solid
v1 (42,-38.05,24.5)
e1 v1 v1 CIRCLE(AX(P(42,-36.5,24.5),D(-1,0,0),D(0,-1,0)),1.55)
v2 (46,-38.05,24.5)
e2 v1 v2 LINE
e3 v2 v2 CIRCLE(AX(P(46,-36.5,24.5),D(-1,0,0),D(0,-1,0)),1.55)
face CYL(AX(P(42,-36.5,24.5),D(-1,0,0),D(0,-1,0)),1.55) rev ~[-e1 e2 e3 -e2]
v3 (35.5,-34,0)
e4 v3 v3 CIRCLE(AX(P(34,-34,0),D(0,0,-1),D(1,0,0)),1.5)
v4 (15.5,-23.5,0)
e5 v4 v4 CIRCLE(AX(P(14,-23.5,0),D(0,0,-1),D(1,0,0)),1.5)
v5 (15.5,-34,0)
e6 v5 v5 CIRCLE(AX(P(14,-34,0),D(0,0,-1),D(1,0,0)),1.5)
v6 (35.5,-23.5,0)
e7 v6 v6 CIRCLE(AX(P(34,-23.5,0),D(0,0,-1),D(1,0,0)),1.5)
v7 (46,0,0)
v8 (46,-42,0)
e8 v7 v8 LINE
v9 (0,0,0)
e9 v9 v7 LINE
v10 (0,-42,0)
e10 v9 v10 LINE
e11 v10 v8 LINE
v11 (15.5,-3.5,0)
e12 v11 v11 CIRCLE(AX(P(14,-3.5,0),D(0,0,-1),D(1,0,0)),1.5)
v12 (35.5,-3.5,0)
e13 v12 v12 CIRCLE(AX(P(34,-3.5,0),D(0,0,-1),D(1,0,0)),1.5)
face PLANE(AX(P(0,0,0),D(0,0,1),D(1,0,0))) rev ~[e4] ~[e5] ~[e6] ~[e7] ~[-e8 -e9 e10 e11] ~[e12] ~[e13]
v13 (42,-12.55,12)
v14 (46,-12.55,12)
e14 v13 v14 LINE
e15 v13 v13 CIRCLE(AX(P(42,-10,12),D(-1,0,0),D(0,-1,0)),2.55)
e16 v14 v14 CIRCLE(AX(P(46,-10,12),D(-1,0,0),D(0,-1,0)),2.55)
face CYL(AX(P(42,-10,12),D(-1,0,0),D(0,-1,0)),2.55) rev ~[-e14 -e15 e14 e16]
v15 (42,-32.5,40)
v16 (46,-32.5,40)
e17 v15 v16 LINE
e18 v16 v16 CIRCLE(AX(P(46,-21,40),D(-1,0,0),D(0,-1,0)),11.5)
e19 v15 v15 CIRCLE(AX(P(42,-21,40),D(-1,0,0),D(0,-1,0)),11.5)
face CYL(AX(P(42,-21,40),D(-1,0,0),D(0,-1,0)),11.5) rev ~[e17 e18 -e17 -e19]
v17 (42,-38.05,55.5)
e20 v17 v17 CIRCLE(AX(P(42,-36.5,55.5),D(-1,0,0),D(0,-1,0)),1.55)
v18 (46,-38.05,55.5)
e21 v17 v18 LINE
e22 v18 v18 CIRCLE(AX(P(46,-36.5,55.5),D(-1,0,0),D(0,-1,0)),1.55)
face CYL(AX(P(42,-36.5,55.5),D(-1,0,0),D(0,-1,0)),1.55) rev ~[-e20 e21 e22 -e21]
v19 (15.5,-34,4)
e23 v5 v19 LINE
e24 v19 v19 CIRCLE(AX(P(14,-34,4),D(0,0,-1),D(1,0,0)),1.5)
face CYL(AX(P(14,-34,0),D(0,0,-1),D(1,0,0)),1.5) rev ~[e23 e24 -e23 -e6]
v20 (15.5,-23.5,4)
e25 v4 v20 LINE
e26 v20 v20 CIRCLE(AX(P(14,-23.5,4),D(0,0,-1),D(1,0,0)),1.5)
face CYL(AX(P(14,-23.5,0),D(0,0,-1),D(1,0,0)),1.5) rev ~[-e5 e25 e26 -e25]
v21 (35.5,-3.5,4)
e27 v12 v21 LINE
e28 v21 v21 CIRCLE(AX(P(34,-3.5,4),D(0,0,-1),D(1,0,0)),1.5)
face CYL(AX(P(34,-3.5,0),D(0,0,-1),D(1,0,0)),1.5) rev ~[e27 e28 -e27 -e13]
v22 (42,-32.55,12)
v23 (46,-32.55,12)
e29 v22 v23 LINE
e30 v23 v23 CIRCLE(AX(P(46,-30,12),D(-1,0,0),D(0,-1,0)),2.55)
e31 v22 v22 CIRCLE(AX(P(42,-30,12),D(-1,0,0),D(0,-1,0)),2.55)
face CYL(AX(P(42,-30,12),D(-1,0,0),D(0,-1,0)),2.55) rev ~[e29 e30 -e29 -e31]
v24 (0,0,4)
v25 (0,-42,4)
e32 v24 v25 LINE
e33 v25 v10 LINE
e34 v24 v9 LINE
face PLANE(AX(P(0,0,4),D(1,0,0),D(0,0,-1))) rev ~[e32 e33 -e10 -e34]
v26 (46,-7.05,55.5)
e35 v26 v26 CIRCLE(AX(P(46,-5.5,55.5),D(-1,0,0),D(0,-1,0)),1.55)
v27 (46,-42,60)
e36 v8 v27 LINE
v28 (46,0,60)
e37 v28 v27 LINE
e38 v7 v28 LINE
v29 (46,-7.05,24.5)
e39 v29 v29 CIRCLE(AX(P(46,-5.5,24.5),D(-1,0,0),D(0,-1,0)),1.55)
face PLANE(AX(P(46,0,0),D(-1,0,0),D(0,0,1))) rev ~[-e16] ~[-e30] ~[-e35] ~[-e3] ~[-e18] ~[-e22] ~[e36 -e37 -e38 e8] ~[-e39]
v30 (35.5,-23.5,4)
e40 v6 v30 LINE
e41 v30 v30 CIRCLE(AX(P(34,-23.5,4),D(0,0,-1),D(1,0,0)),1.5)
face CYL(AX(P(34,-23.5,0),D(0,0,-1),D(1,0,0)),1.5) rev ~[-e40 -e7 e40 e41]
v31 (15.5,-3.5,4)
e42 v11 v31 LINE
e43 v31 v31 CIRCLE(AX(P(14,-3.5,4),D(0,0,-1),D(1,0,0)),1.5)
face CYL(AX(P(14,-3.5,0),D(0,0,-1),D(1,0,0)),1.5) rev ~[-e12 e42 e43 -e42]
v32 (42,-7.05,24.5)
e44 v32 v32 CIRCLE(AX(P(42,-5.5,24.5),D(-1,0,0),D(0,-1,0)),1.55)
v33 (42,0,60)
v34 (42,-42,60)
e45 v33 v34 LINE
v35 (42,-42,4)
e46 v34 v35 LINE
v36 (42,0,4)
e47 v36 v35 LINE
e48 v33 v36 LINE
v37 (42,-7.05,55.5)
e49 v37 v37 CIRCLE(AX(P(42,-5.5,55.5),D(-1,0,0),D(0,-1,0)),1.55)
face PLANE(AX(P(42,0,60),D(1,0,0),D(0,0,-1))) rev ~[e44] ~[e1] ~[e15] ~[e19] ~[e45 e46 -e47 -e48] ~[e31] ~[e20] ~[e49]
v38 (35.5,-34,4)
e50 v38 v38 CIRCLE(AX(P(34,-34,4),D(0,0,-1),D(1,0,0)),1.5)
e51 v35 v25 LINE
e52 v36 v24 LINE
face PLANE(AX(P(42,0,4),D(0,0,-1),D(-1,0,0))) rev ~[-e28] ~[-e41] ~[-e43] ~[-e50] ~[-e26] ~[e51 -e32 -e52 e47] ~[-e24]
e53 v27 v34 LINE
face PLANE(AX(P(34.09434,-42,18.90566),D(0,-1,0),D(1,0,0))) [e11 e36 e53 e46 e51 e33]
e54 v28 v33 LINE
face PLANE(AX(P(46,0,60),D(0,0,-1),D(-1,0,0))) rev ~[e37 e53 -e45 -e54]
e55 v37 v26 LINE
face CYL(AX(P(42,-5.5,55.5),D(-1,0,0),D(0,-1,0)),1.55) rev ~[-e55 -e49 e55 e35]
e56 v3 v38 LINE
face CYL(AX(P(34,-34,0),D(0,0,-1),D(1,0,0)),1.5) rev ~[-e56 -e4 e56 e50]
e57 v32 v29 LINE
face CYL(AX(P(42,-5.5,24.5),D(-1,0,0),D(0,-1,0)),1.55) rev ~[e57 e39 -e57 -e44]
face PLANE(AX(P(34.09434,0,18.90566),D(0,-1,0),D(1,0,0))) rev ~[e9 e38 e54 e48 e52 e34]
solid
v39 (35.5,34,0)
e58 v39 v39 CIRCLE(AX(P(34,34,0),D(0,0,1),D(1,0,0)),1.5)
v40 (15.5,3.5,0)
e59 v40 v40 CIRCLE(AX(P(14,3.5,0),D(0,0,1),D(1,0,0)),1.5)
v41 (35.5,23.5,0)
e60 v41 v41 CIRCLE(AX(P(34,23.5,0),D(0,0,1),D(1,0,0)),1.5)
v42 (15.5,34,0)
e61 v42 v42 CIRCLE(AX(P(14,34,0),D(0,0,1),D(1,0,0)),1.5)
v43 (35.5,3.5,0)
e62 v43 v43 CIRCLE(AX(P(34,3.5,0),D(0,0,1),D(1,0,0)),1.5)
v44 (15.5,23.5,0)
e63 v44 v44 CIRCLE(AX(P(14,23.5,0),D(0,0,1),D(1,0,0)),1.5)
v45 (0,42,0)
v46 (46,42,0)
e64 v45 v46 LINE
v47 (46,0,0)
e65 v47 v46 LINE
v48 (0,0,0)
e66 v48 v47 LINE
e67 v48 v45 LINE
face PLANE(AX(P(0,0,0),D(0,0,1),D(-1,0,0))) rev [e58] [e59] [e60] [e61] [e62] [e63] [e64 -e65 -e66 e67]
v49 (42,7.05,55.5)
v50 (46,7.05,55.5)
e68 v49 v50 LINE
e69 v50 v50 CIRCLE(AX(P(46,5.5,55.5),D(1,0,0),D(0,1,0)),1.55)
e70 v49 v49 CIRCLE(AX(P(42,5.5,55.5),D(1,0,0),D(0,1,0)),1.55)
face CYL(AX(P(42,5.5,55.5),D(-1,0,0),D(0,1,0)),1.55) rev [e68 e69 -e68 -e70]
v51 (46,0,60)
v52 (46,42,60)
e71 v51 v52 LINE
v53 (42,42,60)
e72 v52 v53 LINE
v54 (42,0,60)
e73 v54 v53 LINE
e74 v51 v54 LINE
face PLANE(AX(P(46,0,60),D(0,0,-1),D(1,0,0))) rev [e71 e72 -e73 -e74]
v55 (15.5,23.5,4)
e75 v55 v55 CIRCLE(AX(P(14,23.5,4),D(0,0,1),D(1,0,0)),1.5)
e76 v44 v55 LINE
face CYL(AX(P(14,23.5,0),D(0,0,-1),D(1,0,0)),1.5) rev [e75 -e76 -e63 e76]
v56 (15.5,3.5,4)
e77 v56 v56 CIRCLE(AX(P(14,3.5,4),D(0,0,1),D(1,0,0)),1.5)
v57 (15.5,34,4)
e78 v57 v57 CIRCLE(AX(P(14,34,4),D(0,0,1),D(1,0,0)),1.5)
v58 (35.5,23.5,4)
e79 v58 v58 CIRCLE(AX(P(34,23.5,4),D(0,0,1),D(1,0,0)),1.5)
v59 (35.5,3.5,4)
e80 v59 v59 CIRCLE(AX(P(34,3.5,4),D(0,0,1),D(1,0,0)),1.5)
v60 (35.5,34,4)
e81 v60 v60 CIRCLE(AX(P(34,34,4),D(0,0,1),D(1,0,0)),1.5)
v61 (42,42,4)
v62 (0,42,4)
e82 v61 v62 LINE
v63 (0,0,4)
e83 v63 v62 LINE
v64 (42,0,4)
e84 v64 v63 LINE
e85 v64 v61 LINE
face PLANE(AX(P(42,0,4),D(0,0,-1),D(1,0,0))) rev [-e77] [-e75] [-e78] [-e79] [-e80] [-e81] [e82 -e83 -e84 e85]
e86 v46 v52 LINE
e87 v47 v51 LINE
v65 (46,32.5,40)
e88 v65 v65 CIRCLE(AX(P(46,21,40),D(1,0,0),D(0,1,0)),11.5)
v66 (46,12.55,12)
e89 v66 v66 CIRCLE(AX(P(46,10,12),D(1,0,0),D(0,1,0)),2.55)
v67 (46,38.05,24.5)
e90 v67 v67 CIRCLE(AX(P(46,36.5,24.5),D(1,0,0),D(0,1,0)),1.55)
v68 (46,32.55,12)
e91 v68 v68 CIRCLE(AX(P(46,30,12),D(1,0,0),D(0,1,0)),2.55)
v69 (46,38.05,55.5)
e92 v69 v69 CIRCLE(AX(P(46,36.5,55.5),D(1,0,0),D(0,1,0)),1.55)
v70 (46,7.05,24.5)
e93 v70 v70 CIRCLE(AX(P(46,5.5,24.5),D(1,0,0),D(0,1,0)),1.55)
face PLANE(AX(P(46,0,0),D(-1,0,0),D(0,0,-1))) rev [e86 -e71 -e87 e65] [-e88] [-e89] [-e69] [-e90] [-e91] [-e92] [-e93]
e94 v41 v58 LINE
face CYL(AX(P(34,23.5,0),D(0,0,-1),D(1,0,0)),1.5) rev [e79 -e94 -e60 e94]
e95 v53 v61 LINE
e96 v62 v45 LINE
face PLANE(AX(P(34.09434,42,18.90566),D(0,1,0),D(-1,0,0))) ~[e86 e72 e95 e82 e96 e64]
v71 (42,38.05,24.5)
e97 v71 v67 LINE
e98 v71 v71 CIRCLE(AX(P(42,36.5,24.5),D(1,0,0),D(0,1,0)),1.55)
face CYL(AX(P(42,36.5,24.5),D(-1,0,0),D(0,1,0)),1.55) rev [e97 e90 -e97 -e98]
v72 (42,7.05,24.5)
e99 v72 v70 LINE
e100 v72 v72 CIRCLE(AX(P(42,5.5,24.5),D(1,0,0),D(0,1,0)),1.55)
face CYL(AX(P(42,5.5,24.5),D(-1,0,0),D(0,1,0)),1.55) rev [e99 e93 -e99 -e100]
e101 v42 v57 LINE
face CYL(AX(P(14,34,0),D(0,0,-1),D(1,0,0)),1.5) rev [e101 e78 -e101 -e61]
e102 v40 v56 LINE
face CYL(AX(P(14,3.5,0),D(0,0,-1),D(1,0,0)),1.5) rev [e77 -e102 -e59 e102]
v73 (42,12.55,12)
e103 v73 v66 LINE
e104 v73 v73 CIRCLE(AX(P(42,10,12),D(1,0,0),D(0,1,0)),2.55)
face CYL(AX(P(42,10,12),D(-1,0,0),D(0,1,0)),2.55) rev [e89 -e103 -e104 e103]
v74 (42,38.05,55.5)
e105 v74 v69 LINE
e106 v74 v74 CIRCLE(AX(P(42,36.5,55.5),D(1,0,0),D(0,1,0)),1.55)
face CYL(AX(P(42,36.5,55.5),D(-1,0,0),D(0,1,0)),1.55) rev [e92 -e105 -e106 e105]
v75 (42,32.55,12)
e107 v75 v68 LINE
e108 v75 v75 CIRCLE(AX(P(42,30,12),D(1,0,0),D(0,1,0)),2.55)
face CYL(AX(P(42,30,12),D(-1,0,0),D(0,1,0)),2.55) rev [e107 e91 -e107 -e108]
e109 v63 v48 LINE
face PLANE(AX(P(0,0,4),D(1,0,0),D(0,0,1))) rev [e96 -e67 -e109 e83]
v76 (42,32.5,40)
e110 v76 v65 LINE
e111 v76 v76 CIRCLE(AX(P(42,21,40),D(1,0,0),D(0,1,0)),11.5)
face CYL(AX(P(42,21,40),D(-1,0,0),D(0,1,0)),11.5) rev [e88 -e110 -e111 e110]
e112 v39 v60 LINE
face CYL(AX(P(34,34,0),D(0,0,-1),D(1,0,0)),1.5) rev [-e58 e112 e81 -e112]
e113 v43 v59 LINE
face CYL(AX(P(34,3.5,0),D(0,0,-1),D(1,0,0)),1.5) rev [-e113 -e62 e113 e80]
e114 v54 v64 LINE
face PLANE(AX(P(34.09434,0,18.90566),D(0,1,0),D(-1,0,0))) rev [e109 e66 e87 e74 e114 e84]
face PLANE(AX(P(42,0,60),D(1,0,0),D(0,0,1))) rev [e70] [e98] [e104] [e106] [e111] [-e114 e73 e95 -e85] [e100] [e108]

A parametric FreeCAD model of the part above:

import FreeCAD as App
import Part
import Sketcher
Q = App.Units.Quantity


def add_polygon(sketch, points):
    """Adds a closed chain of lines whose ends are joined by coincident constraints."""
    first, n = sketch.GeometryCount, len(points)
    for a, b in zip(points, points[1:] + points[:1]):
        sketch.addGeometry(Part.LineSegment(App.Vector(*a, 0), App.Vector(*b, 0)), False)
    for i in range(n):
        sketch.addConstraint(Sketcher.Constraint("Coincident", first + i, 2, first + (i + 1) % n, 1))

doc = App.newDocument("Part")
body = doc.addObject("PartDesign::Body", "Body")

# Sketch on XZ plane
sketch1 = doc.addObject("Sketcher::SketchObject", "Sketch")
body.addObject(sketch1)
sketch1.AttachmentSupport = (doc.XZ_Plane, [""])
sketch1.MapMode = "FlatFace"
add_polygon(sketch1, [(0, 4), (0, 0), (46, 0), (46, 60), (42, 60), (42, 4)])  # lines 0-5
sketch1.addConstraint(Sketcher.Constraint("Vertical", 0))
sketch1.addConstraint(Sketcher.Constraint("Horizontal", 1))
sketch1.addConstraint(Sketcher.Constraint("Vertical", 2))
sketch1.addConstraint(Sketcher.Constraint("Horizontal", 3))
sketch1.addConstraint(Sketcher.Constraint("Vertical", 4))
sketch1.addConstraint(Sketcher.Constraint("Horizontal", 5))
sketch1.addConstraint(Sketcher.Constraint("Coincident", 0, 2, -1, 1))
sketch1.addConstraint(Sketcher.Constraint("Equal", 3, 0))
sketch1.addConstraint(Sketcher.Constraint("DistanceX", 1, 1, 1, 2, Q("46 mm")))
sketch1.addConstraint(Sketcher.Constraint("DistanceX", 3, 2, 3, 1, Q("4 mm")))
sketch1.addConstraint(Sketcher.Constraint("DistanceY", 2, 1, 2, 2, Q("60 mm")))
pad1 = doc.addObject("PartDesign::Pad", "Pad")
body.addObject(pad1)
pad1.Profile = sketch1
pad1.Length = 42

# Sketch on XY plane
sketch2 = doc.addObject("Sketcher::SketchObject", "Sketch001")
body.addObject(sketch2)
sketch2.AttachmentSupport = (doc.XY_Plane, [""])
sketch2.MapMode = "FlatFace"
sketch2.addGeometry(Part.Circle(App.Vector(14, -3.5, 0), App.Vector(0, 0, 1), 1.5), False)
sketch2.addGeometry(Part.Circle(App.Vector(34, -3.5, 0), App.Vector(0, 0, 1), 1.5), False)
sketch2.addGeometry(Part.Circle(App.Vector(14, -23.5, 0), App.Vector(0, 0, 1), 1.5), False)
sketch2.addGeometry(Part.Circle(App.Vector(34, -23.5, 0), App.Vector(0, 0, 1), 1.5), False)
sketch2.addGeometry(Part.Circle(App.Vector(34, -34, 0), App.Vector(0, 0, 1), 1.5), False)
sketch2.addGeometry(Part.Circle(App.Vector(14, -34, 0), App.Vector(0, 0, 1), 1.5), False)
sketch2.addConstraint(Sketcher.Constraint("Equal", 0, 1))
sketch2.addConstraint(Sketcher.Constraint("Equal", 1, 2))
sketch2.addConstraint(Sketcher.Constraint("Equal", 2, 3))
sketch2.addConstraint(Sketcher.Constraint("Equal", 3, 4))
sketch2.addConstraint(Sketcher.Constraint("Equal", 4, 5))
sketch2.addConstraint(Sketcher.Constraint("Horizontal", 0, 3, 1, 3))
sketch2.addConstraint(Sketcher.Constraint("Horizontal", 2, 3, 3, 3))
sketch2.addConstraint(Sketcher.Constraint("Horizontal", 4, 3, 5, 3))
sketch2.addConstraint(Sketcher.Constraint("Vertical", 0, 3, 2, 3))
sketch2.addConstraint(Sketcher.Constraint("Vertical", 1, 3, 3, 3))
sketch2.addConstraint(Sketcher.Constraint("Vertical", 3, 3, 4, 3))
sketch2.addConstraint(Sketcher.Constraint("Vertical", 2, 3, 5, 3))
sketch2.addConstraint(Sketcher.Constraint("Diameter", 0, Q("3 mm")))
sketch2.addConstraint(Sketcher.Constraint("DistanceX", -1, 1, 0, 3, Q("14 mm")))
sketch2.addConstraint(Sketcher.Constraint("DistanceX", -1, 1, 1, 3, Q("34 mm")))
sketch2.addConstraint(Sketcher.Constraint("DistanceY", 4, 3, -1, 1, Q("34 mm")))
sketch2.addConstraint(Sketcher.Constraint("DistanceY", 2, 3, 0, 3, Q("20 mm")))
sketch2.addConstraint(Sketcher.Constraint("DistanceY", 0, 3, -1, 1, Q("3.5 mm")))
pocket1 = doc.addObject("PartDesign::Pocket", "Pocket")
body.addObject(pocket1)
pocket1.Profile = sketch2
pocket1.Length = 25
pocket1.Reversed = True

# Sketch on YZ plane
sketch3 = doc.addObject("Sketcher::SketchObject", "Sketch002")
body.addObject(sketch3)
sketch3.AttachmentSupport = (doc.YZ_Plane, [""])
sketch3.MapMode = "FlatFace"
sketch3.AttachmentOffset = App.Placement(App.Vector(0, 0, 42), App.Rotation())
sketch3.addGeometry(Part.Circle(App.Vector(-10, 12, 0), App.Vector(0, 0, 1), 2.5), False)
sketch3.addGeometry(Part.Circle(App.Vector(-30, 12, 0), App.Vector(0, 0, 1), 2.5), False)
sketch3.addConstraint(Sketcher.Constraint("Equal", 0, 1))
sketch3.addConstraint(Sketcher.Constraint("Horizontal", 0, 3, 1, 3))
sketch3.addConstraint(Sketcher.Constraint("Diameter", 0, Q("5.1 mm")))
sketch3.addConstraint(Sketcher.Constraint("DistanceX", 0, 3, -1, 1, Q("10 mm")))
sketch3.addConstraint(Sketcher.Constraint("DistanceY", -1, 1, 0, 3, Q("12 mm")))
sketch3.addConstraint(Sketcher.Constraint("DistanceX", 1, 3, -1, 1, Q("30 mm")))
pocket2 = doc.addObject("PartDesign::Pocket", "Pocket001")
body.addObject(pocket2)
pocket2.Profile = sketch3
pocket2.Type = "ThroughAll"
pocket2.Reversed = True

# Sketch on YZ plane
sketch4 = doc.addObject("Sketcher::SketchObject", "Sketch003")
body.addObject(sketch4)
sketch4.AttachmentSupport = (doc.YZ_Plane, [""])
sketch4.MapMode = "FlatFace"
sketch4.AttachmentOffset = App.Placement(App.Vector(0, 0, 42), App.Rotation())
sketch4.addGeometry(Part.Circle(App.Vector(-5.5, 55.5, 0), App.Vector(0, 0, 1), 1.6), False)
sketch4.addGeometry(Part.Circle(App.Vector(-36.5, 55.5, 0), App.Vector(0, 0, 1), 1.6), False)
sketch4.addGeometry(Part.Circle(App.Vector(-5.5, 24.5, 0), App.Vector(0, 0, 1), 1.6), False)
sketch4.addGeometry(Part.Circle(App.Vector(-36.5, 24.5, 0), App.Vector(0, 0, 1), 1.6), False)
sketch4.addGeometry(Part.Circle(App.Vector(-21, 40, 0), App.Vector(0, 0, 1), 11.5), False)
sketch4.addConstraint(Sketcher.Constraint("Equal", 0, 1))
sketch4.addConstraint(Sketcher.Constraint("Equal", 1, 2))
sketch4.addConstraint(Sketcher.Constraint("Equal", 2, 3))
sketch4.addConstraint(Sketcher.Constraint("Horizontal", 0, 3, 1, 3))
sketch4.addConstraint(Sketcher.Constraint("Horizontal", 2, 3, 3, 3))
sketch4.addConstraint(Sketcher.Constraint("Vertical", 0, 3, 2, 3))
sketch4.addConstraint(Sketcher.Constraint("Vertical", 1, 3, 3, 3))
sketch4.addConstraint(Sketcher.Constraint("Diameter", 4, Q("23 mm")))
sketch4.addConstraint(Sketcher.Constraint("Diameter", 0, Q("3.1 mm")))
sketch4.addConstraint(Sketcher.Constraint("DistanceX", 4, 3, -1, 1, Q("21 mm")))
sketch4.addConstraint(Sketcher.Constraint("DistanceY", -1, 1, 4, 3, Q("40 mm")))
sketch4.addConstraint(Sketcher.Constraint("DistanceX", 1, 3, 0, 3, Q("31 mm")))
sketch4.addConstraint(Sketcher.Constraint("DistanceY", 2, 3, 0, 3, Q("31 mm")))
sketch4.addConstraint(Sketcher.Constraint("DistanceX", 0, 3, -1, 1, Q("5.5 mm")))
sketch4.addConstraint(Sketcher.Constraint("DistanceY", -1, 1, 0, 3, Q("55.5 mm")))
pocket3 = doc.addObject("PartDesign::Pocket", "Pocket002")
body.addObject(pocket3)
pocket3.Profile = sketch4
pocket3.Type = "ThroughAll"
pocket3.Reversed = True
body2 = doc.addObject("PartDesign::Body", "Body001")
doc.recompute()

mirroring = doc.addObject("Part::Mirroring", "Mirroring")
mirroring.Source = body
mirroring.Base = App.Vector(0, 0, 0)
mirroring.Normal = App.Vector(0, -1, 0)
body2.BaseFeature = mirroring
doc.recompute()
mirroring.Visibility = False

doc.recompute()
